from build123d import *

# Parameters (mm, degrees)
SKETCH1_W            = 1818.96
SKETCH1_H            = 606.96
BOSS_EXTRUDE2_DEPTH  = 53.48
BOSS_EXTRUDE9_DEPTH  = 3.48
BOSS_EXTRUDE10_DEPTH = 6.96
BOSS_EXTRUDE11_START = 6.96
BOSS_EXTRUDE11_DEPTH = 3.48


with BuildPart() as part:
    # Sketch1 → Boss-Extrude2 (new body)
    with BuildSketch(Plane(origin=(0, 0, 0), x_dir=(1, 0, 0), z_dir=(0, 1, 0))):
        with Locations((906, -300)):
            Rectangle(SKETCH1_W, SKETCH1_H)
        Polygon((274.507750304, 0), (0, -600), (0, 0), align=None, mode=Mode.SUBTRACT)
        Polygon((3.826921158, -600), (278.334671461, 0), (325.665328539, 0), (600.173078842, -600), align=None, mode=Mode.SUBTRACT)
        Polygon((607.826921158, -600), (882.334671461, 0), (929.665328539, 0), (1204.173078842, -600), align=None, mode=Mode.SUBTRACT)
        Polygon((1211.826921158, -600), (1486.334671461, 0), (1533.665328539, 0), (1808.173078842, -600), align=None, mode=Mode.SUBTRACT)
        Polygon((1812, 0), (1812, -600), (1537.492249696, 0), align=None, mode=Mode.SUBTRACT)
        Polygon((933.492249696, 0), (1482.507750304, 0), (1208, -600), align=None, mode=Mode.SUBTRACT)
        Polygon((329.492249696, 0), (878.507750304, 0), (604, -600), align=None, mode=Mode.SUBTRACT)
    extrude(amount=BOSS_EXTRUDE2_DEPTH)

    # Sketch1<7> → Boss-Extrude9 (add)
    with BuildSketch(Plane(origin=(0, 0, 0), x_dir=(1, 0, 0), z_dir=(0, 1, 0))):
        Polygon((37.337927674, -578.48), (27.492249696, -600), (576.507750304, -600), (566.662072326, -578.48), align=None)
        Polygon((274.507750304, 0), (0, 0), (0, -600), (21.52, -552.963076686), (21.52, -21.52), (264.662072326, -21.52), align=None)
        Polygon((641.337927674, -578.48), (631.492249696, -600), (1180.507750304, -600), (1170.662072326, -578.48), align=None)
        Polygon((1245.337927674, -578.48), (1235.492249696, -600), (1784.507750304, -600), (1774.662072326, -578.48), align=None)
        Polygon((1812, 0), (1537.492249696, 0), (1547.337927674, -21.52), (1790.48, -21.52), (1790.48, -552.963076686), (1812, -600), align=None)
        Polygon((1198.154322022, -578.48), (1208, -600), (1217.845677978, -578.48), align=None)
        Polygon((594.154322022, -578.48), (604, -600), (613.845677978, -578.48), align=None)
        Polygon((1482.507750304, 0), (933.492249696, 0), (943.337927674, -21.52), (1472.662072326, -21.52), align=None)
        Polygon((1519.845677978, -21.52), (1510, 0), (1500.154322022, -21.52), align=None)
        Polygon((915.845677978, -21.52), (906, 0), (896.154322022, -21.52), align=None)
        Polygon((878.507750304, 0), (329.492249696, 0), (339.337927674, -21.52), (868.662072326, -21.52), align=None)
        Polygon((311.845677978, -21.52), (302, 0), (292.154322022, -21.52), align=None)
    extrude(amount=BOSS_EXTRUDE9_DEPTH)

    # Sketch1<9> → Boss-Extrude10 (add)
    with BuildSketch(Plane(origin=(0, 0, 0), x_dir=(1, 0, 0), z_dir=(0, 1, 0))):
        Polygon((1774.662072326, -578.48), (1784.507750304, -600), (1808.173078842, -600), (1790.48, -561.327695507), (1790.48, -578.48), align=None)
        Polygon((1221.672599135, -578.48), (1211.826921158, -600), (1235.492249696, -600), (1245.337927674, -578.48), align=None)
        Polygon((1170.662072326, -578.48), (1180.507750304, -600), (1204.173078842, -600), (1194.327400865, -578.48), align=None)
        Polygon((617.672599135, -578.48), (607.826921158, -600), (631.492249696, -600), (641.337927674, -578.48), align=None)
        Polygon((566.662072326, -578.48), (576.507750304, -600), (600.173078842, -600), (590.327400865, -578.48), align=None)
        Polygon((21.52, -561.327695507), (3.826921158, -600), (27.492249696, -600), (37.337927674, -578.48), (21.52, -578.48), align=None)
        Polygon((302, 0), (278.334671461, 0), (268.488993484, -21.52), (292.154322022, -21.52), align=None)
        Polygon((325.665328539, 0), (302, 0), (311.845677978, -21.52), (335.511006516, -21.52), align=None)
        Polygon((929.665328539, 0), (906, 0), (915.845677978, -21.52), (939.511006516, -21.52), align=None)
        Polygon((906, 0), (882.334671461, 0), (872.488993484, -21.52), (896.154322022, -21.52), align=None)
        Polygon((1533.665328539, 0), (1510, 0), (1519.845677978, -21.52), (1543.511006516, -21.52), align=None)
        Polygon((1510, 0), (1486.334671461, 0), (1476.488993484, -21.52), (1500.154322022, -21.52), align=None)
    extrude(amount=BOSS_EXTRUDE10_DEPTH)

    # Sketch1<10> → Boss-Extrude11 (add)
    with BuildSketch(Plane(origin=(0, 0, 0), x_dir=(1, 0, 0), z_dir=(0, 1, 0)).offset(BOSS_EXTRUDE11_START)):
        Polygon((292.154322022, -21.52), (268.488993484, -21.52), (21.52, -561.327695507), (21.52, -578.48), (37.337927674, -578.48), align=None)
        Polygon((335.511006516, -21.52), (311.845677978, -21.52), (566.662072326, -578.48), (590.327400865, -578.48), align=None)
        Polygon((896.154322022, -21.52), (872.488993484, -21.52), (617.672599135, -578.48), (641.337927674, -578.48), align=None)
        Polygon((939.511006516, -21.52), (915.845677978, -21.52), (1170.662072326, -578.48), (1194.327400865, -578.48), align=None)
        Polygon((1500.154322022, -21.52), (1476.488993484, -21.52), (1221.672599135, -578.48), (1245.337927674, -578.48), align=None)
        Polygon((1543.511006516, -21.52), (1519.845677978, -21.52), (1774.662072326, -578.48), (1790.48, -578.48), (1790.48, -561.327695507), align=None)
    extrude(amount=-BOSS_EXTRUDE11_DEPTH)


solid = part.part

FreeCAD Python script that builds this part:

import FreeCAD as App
import Part
import Sketcher

V = App.Vector

doc = App.newDocument("Part")
params = doc.addObject("Spreadsheet::Sheet", "Params")
for row, (alias, value) in enumerate([
    ("sketch1_height", "600 mm"),
    ("sketch1_width", "1818.96 mm"),
    ("sketch1_height2", "606.96 mm"),
    ("pad1_length", "53.48 mm"),
    ("sketch2_height", "600 mm"),
    ("pad2_length", "3.48 mm"),
    ("pad3_length", "6.96 mm"),
    ("pad4_length", "3.48 mm"),
], start=1):
    params.set(f"A{row}", alias)
    params.set(f"B{row}", "=" + value)
    params.setAlias(f"B{row}", alias)

body = doc.addObject("PartDesign::Body", "Body")
body.AllowCompound = True

# Sketch on XZ plane
sketch1 = body.newObject("Sketcher::SketchObject", "Sketch")
sketch1.AttachmentSupport = (doc.getObject("XZ_Plane"), [""])
sketch1.MapMode = "FlatFace"
sketch1.addGeometry(Part.LineSegment(V(-3, -3, 0), V(-3, 603, 0)), False)
sketch1.addGeometry(Part.LineSegment(V(-3, 603, 0), V(1815, 603, 0)), False)
sketch1.addGeometry(Part.LineSegment(V(1815, 603, 0), V(1815, -3, 0)), False)
sketch1.addGeometry(Part.LineSegment(V(1815, -3, 0), V(-3, -3, 0)), False)
sketch1.addGeometry(Part.LineSegment(V(0, 0, 0), V(275, 0, 0)), False)
sketch1.addGeometry(Part.LineSegment(V(275, 0, 0), V(0, 600, 0)), False)
sketch1.addGeometry(Part.LineSegment(V(0, 600, 0), V(0, 0, 0)), False)
sketch1.addGeometry(Part.LineSegment(V(600, 600, 0), V(4, 600, 0)), False)
sketch1.addGeometry(Part.LineSegment(V(4, 600, 0), V(278, 0, 0)), False)
sketch1.addGeometry(Part.LineSegment(V(278, 0, 0), V(326, 0, 0)), False)
sketch1.addGeometry(Part.LineSegment(V(326, 0, 0), V(600, 600, 0)), False)
sketch1.addGeometry(Part.LineSegment(V(604, 600, 0), V(329, 0, 0)), False)
sketch1.addGeometry(Part.LineSegment(V(329, 0, 0), V(879, 0, 0)), False)
sketch1.addGeometry(Part.LineSegment(V(879, 0, 0), V(604, 600, 0)), False)
sketch1.addGeometry(Part.LineSegment(V(1204, 600, 0), V(608, 600, 0)), False)
sketch1.addGeometry(Part.LineSegment(V(608, 600, 0), V(882, 0, 0)), False)
sketch1.addGeometry(Part.LineSegment(V(882, 0, 0), V(930, 0, 0)), False)
sketch1.addGeometry(Part.LineSegment(V(930, 0, 0), V(1204, 600, 0)), False)
sketch1.addGeometry(Part.LineSegment(V(1208, 600, 0), V(933, 0, 0)), False)
sketch1.addGeometry(Part.LineSegment(V(933, 0, 0), V(1483, 0, 0)), False)
sketch1.addGeometry(Part.LineSegment(V(1483, 0, 0), V(1208, 600, 0)), False)
sketch1.addGeometry(Part.LineSegment(V(1808, 600, 0), V(1212, 600, 0)), False)
sketch1.addGeometry(Part.LineSegment(V(1212, 600, 0), V(1486, 0, 0)), False)
sketch1.addGeometry(Part.LineSegment(V(1486, 0, 0), V(1534, 0, 0)), False)
sketch1.addGeometry(Part.LineSegment(V(1534, 0, 0), V(1808, 600, 0)), False)
sketch1.addGeometry(Part.LineSegment(V(1537, 0, 0), V(1812, 0, 0)), False)
sketch1.addGeometry(Part.LineSegment(V(1812, 0, 0), V(1812, 600, 0)), False)
sketch1.addGeometry(Part.LineSegment(V(1812, 600, 0), V(1537, 0, 0)), False)
sketch1.addConstraint(Sketcher.Constraint("Coincident", 0, 2, 1, 1))
sketch1.addConstraint(Sketcher.Constraint("Coincident", 1, 2, 2, 1))
sketch1.addConstraint(Sketcher.Constraint("Coincident", 2, 2, 3, 1))
sketch1.addConstraint(Sketcher.Constraint("Coincident", 3, 2, 0, 1))
sketch1.addConstraint(Sketcher.Constraint("Coincident", 4, 2, 5, 1))
sketch1.addConstraint(Sketcher.Constraint("Coincident", 5, 2, 6, 1))
sketch1.addConstraint(Sketcher.Constraint("Coincident", 6, 2, 4, 1))
sketch1.addConstraint(Sketcher.Constraint("Coincident", 7, 2, 8, 1))
sketch1.addConstraint(Sketcher.Constraint("Coincident", 8, 2, 9, 1))
sketch1.addConstraint(Sketcher.Constraint("Coincident", 9, 2, 10, 1))
sketch1.addConstraint(Sketcher.Constraint("Coincident", 10, 2, 7, 1))
sketch1.addConstraint(Sketcher.Constraint("Coincident", 11, 2, 12, 1))
sketch1.addConstraint(Sketcher.Constraint("Coincident", 12, 2, 13, 1))
sketch1.addConstraint(Sketcher.Constraint("Coincident", 13, 2, 11, 1))
sketch1.addConstraint(Sketcher.Constraint("Coincident", 14, 2, 15, 1))
sketch1.addConstraint(Sketcher.Constraint("Coincident", 15, 2, 16, 1))
sketch1.addConstraint(Sketcher.Constraint("Coincident", 16, 2, 17, 1))
sketch1.addConstraint(Sketcher.Constraint("Coincident", 17, 2, 14, 1))
sketch1.addConstraint(Sketcher.Constraint("Coincident", 18, 2, 19, 1))
sketch1.addConstraint(Sketcher.Constraint("Coincident", 19, 2, 20, 1))
sketch1.addConstraint(Sketcher.Constraint("Coincident", 20, 2, 18, 1))
sketch1.addConstraint(Sketcher.Constraint("Coincident", 21, 2, 22, 1))
sketch1.addConstraint(Sketcher.Constraint("Coincident", 22, 2, 23, 1))
sketch1.addConstraint(Sketcher.Constraint("Coincident", 23, 2, 24, 1))
sketch1.addConstraint(Sketcher.Constraint("Coincident", 24, 2, 21, 1))
sketch1.addConstraint(Sketcher.Constraint("Coincident", 25, 2, 26, 1))
sketch1.addConstraint(Sketcher.Constraint("Coincident", 26, 2, 27, 1))
sketch1.addConstraint(Sketcher.Constraint("Coincident", 27, 2, 25, 1))
sketch1.addConstraint(Sketcher.Constraint("Vertical", 0))
sketch1.addConstraint(Sketcher.Constraint("Horizontal", 1))
sketch1.addConstraint(Sketcher.Constraint("Vertical", 2))
sketch1.addConstraint(Sketcher.Constraint("Horizontal", 3))
sketch1.addConstraint(Sketcher.Constraint("Horizontal", 4))
sketch1.addConstraint(Sketcher.Constraint("Vertical", 6))
sketch1.addConstraint(Sketcher.Constraint("Horizontal", 7))
sketch1.addConstraint(Sketcher.Constraint("Horizontal", 9))
sketch1.addConstraint(Sketcher.Constraint("Horizontal", 12))
sketch1.addConstraint(Sketcher.Constraint("Horizontal", 14))
sketch1.addConstraint(Sketcher.Constraint("Horizontal", 16))
sketch1.addConstraint(Sketcher.Constraint("Horizontal", 19))
sketch1.addConstraint(Sketcher.Constraint("Horizontal", 21))
sketch1.addConstraint(Sketcher.Constraint("Horizontal", 23))
sketch1.addConstraint(Sketcher.Constraint("Horizontal", 25))
sketch1.addConstraint(Sketcher.Constraint("Vertical", 26))
sketch1.addConstraint(Sketcher.Constraint("Coincident", 6, 2, -1, 1))
sketch1.addConstraint(Sketcher.Constraint("PointOnObject", 8, 2, -1))
sketch1.addConstraint(Sketcher.Constraint("PointOnObject", 11, 2, -1))
sketch1.addConstraint(Sketcher.Constraint("PointOnObject", 15, 2, -1))
sketch1.addConstraint(Sketcher.Constraint("PointOnObject", 18, 2, -1))
sketch1.addConstraint(Sketcher.Constraint("PointOnObject", 22, 2, -1))
sketch1.addConstraint(Sketcher.Constraint("PointOnObject", 25, 2, -1))
sketch1.addConstraint(Sketcher.Constraint("Parallel", 5, 8))
sketch1.addConstraint(Sketcher.Constraint("Parallel", 10, 11))
sketch1.addConstraint(Sketcher.Constraint("Parallel", 8, 13))
sketch1.addConstraint(Sketcher.Constraint("Parallel", 13, 15))
sketch1.addConstraint(Sketcher.Constraint("Parallel", 11, 17))
sketch1.addConstraint(Sketcher.Constraint("Parallel", 17, 18))
sketch1.addConstraint(Sketcher.Constraint("Parallel", 15, 20))
sketch1.addConstraint(Sketcher.Constraint("Parallel", 20, 22))
sketch1.addConstraint(Sketcher.Constraint("Parallel", 18, 24))
sketch1.addConstraint(Sketcher.Constraint("Parallel", 24, 27))
sketch1.addConstraint(Sketcher.Constraint("Horizontal", 5, 2, 7, 2))
sketch1.addConstraint(Sketcher.Constraint("Horizontal", 10, 2, 13, 2))
sketch1.addConstraint(Sketcher.Constraint("Horizontal", 13, 2, 14, 2))
sketch1.addConstraint(Sketcher.Constraint("Horizontal", 17, 2, 20, 2))
sketch1.addConstraint(Sketcher.Constraint("Horizontal", 20, 2, 21, 2))
sketch1.addConstraint(Sketcher.Constraint("Horizontal", 24, 2, 26, 2))
sketch1.addConstraint(Sketcher.Constraint("Equal", 7, 14))
sketch1.addConstraint(Sketcher.Constraint("Equal", 14, 21))
sketch1.addConstraint(Sketcher.Constraint("Equal", 4, 25))
sketch1.addConstraint(Sketcher.Constraint("DistanceY", 6, 2, 6, 1, 600.0))
sketch1.addConstraint(Sketcher.Constraint("DistanceX", -1, 1, 13, 2, 604.0))
sketch1.addConstraint(Sketcher.Constraint("DistanceX", -1, 1, 20, 2, 1208.0))
sketch1.addConstraint(Sketcher.Constraint("DistanceX", -1, 1, 25, 2, 1812.0))
sketch1.addConstraint(Sketcher.Constraint("DistanceX", 7, 2, 14, 2, 604.0))
sketch1.addConstraint(Sketcher.Constraint("DistanceX", 14, 2, 21, 2, 604.0))
sketch1.addConstraint(Sketcher.Constraint("DistanceX", 1, 1, 1, 2, 1818.96))
sketch1.addConstraint(Sketcher.Constraint("DistanceY", 0, 1, 0, 2, 606.96))
sketch1.addConstraint(Sketcher.Constraint("DistanceX", 0, 2, -1, 1, 3.48))
sketch1.addConstraint(Sketcher.Constraint("DistanceY", -1, 1, 0, 2, 603.48))
sketch1.addConstraint(Sketcher.Constraint("DistanceX", 12, 1, 12, 2, 549.015501))
sketch1.addConstraint(Sketcher.Constraint("DistanceX", 7, 2, 7, 1, 596.346158))
sketch1.addConstraint(Sketcher.Constraint("DistanceX", -1, 1, 7, 2, 3.826921))
sketch1.setExpression("Constraints[70]", "Params.sketch1_height")
sketch1.setExpression("Constraints[76]", "Params.sketch1_width")
sketch1.setExpression("Constraints[77]", "Params.sketch1_height2")
pad1 = body.newObject("PartDesign::Pad", "Pad")
pad1.Profile = sketch1
pad1.setExpression("Length", "Params.pad1_length")
pad1.Reversed = True

# Sketch on XZ plane
sketch2 = body.newObject("Sketcher::SketchObject", "Sketch001")
sketch2.AttachmentSupport = (doc.getObject("XZ_Plane"), [""])
sketch2.MapMode = "FlatFace"
sketch2.addGeometry(Part.LineSegment(V(37, 578, 0), V(27, 600, 0)), False)
sketch2.addGeometry(Part.LineSegment(V(27, 600, 0), V(577, 600, 0)), False)
sketch2.addGeometry(Part.LineSegment(V(577, 600, 0), V(567, 578, 0)), False)
sketch2.addGeometry(Part.LineSegment(V(567, 578, 0), V(37, 578, 0)), False)
sketch2.addGeometry(Part.LineSegment(V(275, 0, 0), V(0, 0, 0)), False)
sketch2.addGeometry(Part.LineSegment(V(0, 0, 0), V(0, 600, 0)), False)
sketch2.addGeometry(Part.LineSegment(V(0, 600, 0), V(22, 553, 0)), False)
sketch2.addGeometry(Part.LineSegment(V(22, 553, 0), V(22, 22, 0)), False)
sketch2.addGeometry(Part.LineSegment(V(22, 22, 0), V(265, 22, 0)), False)
sketch2.addGeometry(Part.LineSegment(V(265, 22, 0), V(275, 0, 0)), False)
sketch2.addGeometry(Part.LineSegment(V(641, 578, 0), V(631, 600, 0)), False)
sketch2.addGeometry(Part.LineSegment(V(631, 600, 0), V(1181, 600, 0)), False)
sketch2.addGeometry(Part.LineSegment(V(1181, 600, 0), V(1171, 578, 0)), False)
sketch2.addGeometry(Part.LineSegment(V(1171, 578, 0), V(641, 578, 0)), False)
sketch2.addGeometry(Part.LineSegment(V(1245, 578, 0), V(1235, 600, 0)), False)
sketch2.addGeometry(Part.LineSegment(V(1235, 600, 0), V(1785, 600, 0)), False)
sketch2.addGeometry(Part.LineSegment(V(1785, 600, 0), V(1775, 578, 0)), False)
sketch2.addGeometry(Part.LineSegment(V(1775, 578, 0), V(1245, 578, 0)), False)
sketch2.addGeometry(Part.LineSegment(V(1812, 0, 0), V(1537, 0, 0)), False)
sketch2.addGeometry(Part.LineSegment(V(1537, 0, 0), V(1547, 22, 0)), False)
sketch2.addGeometry(Part.LineSegment(V(1547, 22, 0), V(1790, 22, 0)), False)
sketch2.addGeometry(Part.LineSegment(V(1790, 22, 0), V(1790, 553, 0)), False)
sketch2.addGeometry(Part.LineSegment(V(1790, 553, 0), V(1812, 600, 0)), False)
sketch2.addGeometry(Part.LineSegment(V(1812, 600, 0), V(1812, 0, 0)), False)
sketch2.addGeometry(Part.LineSegment(V(1198, 578, 0), V(1208, 600, 0)), False)
sketch2.addGeometry(Part.LineSegment(V(1208, 600, 0), V(1218, 578, 0)), False)
sketch2.addGeometry(Part.LineSegment(V(1218, 578, 0), V(1198, 578, 0)), False)
sketch2.addGeometry(Part.LineSegment(V(594, 578, 0), V(604, 600, 0)), False)
sketch2.addGeometry(Part.LineSegment(V(604, 600, 0), V(614, 578, 0)), False)
sketch2.addGeometry(Part.LineSegment(V(614, 578, 0), V(594, 578, 0)), False)
sketch2.addGeometry(Part.LineSegment(V(1483, 0, 0), V(933, 0, 0)), False)
sketch2.addGeometry(Part.LineSegment(V(933, 0, 0), V(943, 22, 0)), False)
sketch2.addGeometry(Part.LineSegment(V(943, 22, 0), V(1473, 22, 0)), False)
sketch2.addGeometry(Part.LineSegment(V(1473, 22, 0), V(1483, 0, 0)), False)
sketch2.addGeometry(Part.LineSegment(V(1520, 22, 0), V(1510, 0, 0)), False)
sketch2.addGeometry(Part.LineSegment(V(1510, 0, 0), V(1500, 22, 0)), False)
sketch2.addGeometry(Part.LineSegment(V(1500, 22, 0), V(1520, 22, 0)), False)
sketch2.addGeometry(Part.LineSegment(V(916, 22, 0), V(906, 0, 0)), False)
sketch2.addGeometry(Part.LineSegment(V(906, 0, 0), V(896, 22, 0)), False)
sketch2.addGeometry(Part.LineSegment(V(896, 22, 0), V(916, 22, 0)), False)
sketch2.addGeometry(Part.LineSegment(V(879, 0, 0), V(329, 0, 0)), False)
sketch2.addGeometry(Part.LineSegment(V(329, 0, 0), V(339, 22, 0)), False)
sketch2.addGeometry(Part.LineSegment(V(339, 22, 0), V(869, 22, 0)), False)
sketch2.addGeometry(Part.LineSegment(V(869, 22, 0), V(879, 0, 0)), False)
sketch2.addGeometry(Part.LineSegment(V(312, 22, 0), V(302, 0, 0)), False)
sketch2.addGeometry(Part.LineSegment(V(302, 0, 0), V(292, 22, 0)), False)
sketch2.addGeometry(Part.LineSegment(V(292, 22, 0), V(312, 22, 0)), False)
sketch2.addConstraint(Sketcher.Constraint("Coincident", 0, 2, 1, 1))
sketch2.addConstraint(Sketcher.Constraint("Coincident", 1, 2, 2, 1))
sketch2.addConstraint(Sketcher.Constraint("Coincident", 2, 2, 3, 1))
sketch2.addConstraint(Sketcher.Constraint("Coincident", 3, 2, 0, 1))
sketch2.addConstraint(Sketcher.Constraint("Coincident", 4, 2, 5, 1))
sketch2.addConstraint(Sketcher.Constraint("Coincident", 5, 2, 6, 1))
sketch2.addConstraint(Sketcher.Constraint("Coincident", 6, 2, 7, 1))
sketch2.addConstraint(Sketcher.Constraint("Coincident", 7, 2, 8, 1))
sketch2.addConstraint(Sketcher.Constraint("Coincident", 8, 2, 9, 1))
sketch2.addConstraint(Sketcher.Constraint("Coincident", 9, 2, 4, 1))
sketch2.addConstraint(Sketcher.Constraint("Coincident", 10, 2, 11, 1))
sketch2.addConstraint(Sketcher.Constraint("Coincident", 11, 2, 12, 1))
sketch2.addConstraint(Sketcher.Constraint("Coincident", 12, 2, 13, 1))
sketch2.addConstraint(Sketcher.Constraint("Coincident", 13, 2, 10, 1))
sketch2.addConstraint(Sketcher.Constraint("Coincident", 14, 2, 15, 1))
sketch2.addConstraint(Sketcher.Constraint("Coincident", 15, 2, 16, 1))
sketch2.addConstraint(Sketcher.Constraint("Coincident", 16, 2, 17, 1))
sketch2.addConstraint(Sketcher.Constraint("Coincident", 17, 2, 14, 1))
sketch2.addConstraint(Sketcher.Constraint("Coincident", 18, 2, 19, 1))
sketch2.addConstraint(Sketcher.Constraint("Coincident", 19, 2, 20, 1))
sketch2.addConstraint(Sketcher.Constraint("Coincident", 20, 2, 21, 1))
sketch2.addConstraint(Sketcher.Constraint("Coincident", 21, 2, 22, 1))
sketch2.addConstraint(Sketcher.Constraint("Coincident", 22, 2, 23, 1))
sketch2.addConstraint(Sketcher.Constraint("Coincident", 23, 2, 18, 1))
sketch2.addConstraint(Sketcher.Constraint("Coincident", 24, 2, 25, 1))
sketch2.addConstraint(Sketcher.Constraint("Coincident", 25, 2, 26, 1))
sketch2.addConstraint(Sketcher.Constraint("Coincident", 26, 2, 24, 1))
sketch2.addConstraint(Sketcher.Constraint("Coincident", 27, 2, 28, 1))
sketch2.addConstraint(Sketcher.Constraint("Coincident", 28, 2, 29, 1))
sketch2.addConstraint(Sketcher.Constraint("Coincident", 29, 2, 27, 1))
sketch2.addConstraint(Sketcher.Constraint("Coincident", 30, 2, 31, 1))
sketch2.addConstraint(Sketcher.Constraint("Coincident", 31, 2, 32, 1))
sketch2.addConstraint(Sketcher.Constraint("Coincident", 32, 2, 33, 1))
sketch2.addConstraint(Sketcher.Constraint("Coincident", 33, 2, 30, 1))
sketch2.addConstraint(Sketcher.Constraint("Coincident", 34, 2, 35, 1))
sketch2.addConstraint(Sketcher.Constraint("Coincident", 35, 2, 36, 1))
sketch2.addConstraint(Sketcher.Constraint("Coincident", 36, 2, 34, 1))
sketch2.addConstraint(Sketcher.Constraint("Coincident", 37, 2, 38, 1))
sketch2.addConstraint(Sketcher.Constraint("Coincident", 38, 2, 39, 1))
sketch2.addConstraint(Sketcher.Constraint("Coincident", 39, 2, 37, 1))
sketch2.addConstraint(Sketcher.Constraint("Coincident", 40, 2, 41, 1))
sketch2.addConstraint(Sketcher.Constraint("Coincident", 41, 2, 42, 1))
sketch2.addConstraint(Sketcher.Constraint("Coincident", 42, 2, 43, 1))
sketch2.addConstraint(Sketcher.Constraint("Coincident", 43, 2, 40, 1))
sketch2.addConstraint(Sketcher.Constraint("Coincident", 44, 2, 45, 1))
sketch2.addConstraint(Sketcher.Constraint("Coincident", 45, 2, 46, 1))
sketch2.addConstraint(Sketcher.Constraint("Coincident", 46, 2, 44, 1))
sketch2.addConstraint(Sketcher.Constraint("Horizontal", 1))
sketch2.addConstraint(Sketcher.Constraint("Horizontal", 3))
sketch2.addConstraint(Sketcher.Constraint("Horizontal", 4))
sketch2.addConstraint(Sketcher.Constraint("Vertical", 5))
sketch2.addConstraint(Sketcher.Constraint("Vertical", 7))
sketch2.addConstraint(Sketcher.Constraint("Horizontal", 8))
sketch2.addConstraint(Sketcher.Constraint("Horizontal", 11))
sketch2.addConstraint(Sketcher.Constraint("Horizontal", 13))
sketch2.addConstraint(Sketcher.Constraint("Horizontal", 15))
sketch2.addConstraint(Sketcher.Constraint("Horizontal", 17))
sketch2.addConstraint(Sketcher.Constraint("Horizontal", 18))
sketch2.addConstraint(Sketcher.Constraint("Horizontal", 20))
sketch2.addConstraint(Sketcher.Constraint("Vertical", 21))
sketch2.addConstraint(Sketcher.Constraint("Vertical", 23))
sketch2.addConstraint(Sketcher.Constraint("Horizontal", 26))
sketch2.addConstraint(Sketcher.Constraint("Horizontal", 29))
sketch2.addConstraint(Sketcher.Constraint("Horizontal", 30))
sketch2.addConstraint(Sketcher.Constraint("Horizontal", 32))
sketch2.addConstraint(Sketcher.Constraint("Horizontal", 36))
sketch2.addConstraint(Sketcher.Constraint("Horizontal", 39))
sketch2.addConstraint(Sketcher.Constraint("Horizontal", 40))
sketch2.addConstraint(Sketcher.Constraint("Horizontal", 42))
sketch2.addConstraint(Sketcher.Constraint("Horizontal", 46))
sketch2.addConstraint(Sketcher.Constraint("Coincident", 4, 2, -1, 1))
sketch2.addConstraint(Sketcher.Constraint("PointOnObject", 18, 2, -1))
sketch2.addConstraint(Sketcher.Constraint("PointOnObject", 30, 2, -1))
sketch2.addConstraint(Sketcher.Constraint("PointOnObject", 34, 2, -1))
sketch2.addConstraint(Sketcher.Constraint("PointOnObject", 37, 2, -1))
sketch2.addConstraint(Sketcher.Constraint("PointOnObject", 40, 2, -1))
sketch2.addConstraint(Sketcher.Constraint("PointOnObject", 44, 2, -1))
sketch2.addConstraint(Sketcher.Constraint("Parallel", 0, 6))
sketch2.addConstraint(Sketcher.Constraint("Parallel", 6, 9))
sketch2.addConstraint(Sketcher.Constraint("Parallel", 9, 10))
sketch2.addConstraint(Sketcher.Constraint("Parallel", 2, 12))
sketch2.addConstraint(Sketcher.Constraint("Parallel", 10, 14))
sketch2.addConstraint(Sketcher.Constraint("Parallel", 12, 16))
sketch2.addConstraint(Sketcher.Constraint("Parallel", 16, 19))
sketch2.addConstraint(Sketcher.Constraint("Parallel", 19, 22))
sketch2.addConstraint(Sketcher.Constraint("Parallel", 22, 24))
sketch2.addConstraint(Sketcher.Constraint("Parallel", 14, 25))
sketch2.addConstraint(Sketcher.Constraint("Parallel", 24, 27))
sketch2.addConstraint(Sketcher.Constraint("Parallel", 25, 28))
sketch2.addConstraint(Sketcher.Constraint("Parallel", 27, 31))
sketch2.addConstraint(Sketcher.Constraint("Parallel", 28, 33))
sketch2.addConstraint(Sketcher.Constraint("Parallel", 31, 34))
sketch2.addConstraint(Sketcher.Constraint("Parallel", 33, 35))
sketch2.addConstraint(Sketcher.Constraint("Parallel", 34, 37))
sketch2.addConstraint(Sketcher.Constraint("Parallel", 35, 38))
sketch2.addConstraint(Sketcher.Constraint("Parallel", 37, 41))
sketch2.addConstraint(Sketcher.Constraint("Parallel", 38, 43))
sketch2.addConstraint(Sketcher.Constraint("Parallel", 41, 44))
sketch2.addConstraint(Sketcher.Constraint("Parallel", 43, 45))
sketch2.addConstraint(Sketcher.Constraint("Horizontal", 1, 2, 5, 2))
sketch2.addConstraint(Sketcher.Constraint("Horizontal", 5, 2, 10, 2))
sketch2.addConstraint(Sketcher.Constraint("Horizontal", 3, 2, 12, 2))
sketch2.addConstraint(Sketcher.Constraint("Horizontal", 11, 2, 14, 2))
sketch2.addConstraint(Sketcher.Constraint("Horizontal", 13, 2, 16, 2))
sketch2.addConstraint(Sketcher.Constraint("Horizontal", 8, 2, 19, 2))
sketch2.addConstraint(Sketcher.Constraint("Horizontal", 6, 2, 21, 2))
sketch2.addConstraint(Sketcher.Constraint("Horizontal", 15, 2, 22, 2))
sketch2.addConstraint(Sketcher.Constraint("Horizontal", 22, 2, 24, 2))
sketch2.addConstraint(Sketcher.Constraint("Horizontal", 17, 2, 25, 2))
sketch2.addConstraint(Sketcher.Constraint("Horizontal", 24, 2, 27, 2))
sketch2.addConstraint(Sketcher.Constraint("Horizontal", 26, 2, 28, 2))
sketch2.addConstraint(Sketcher.Constraint("Horizontal", 20, 2, 31, 2))
sketch2.addConstraint(Sketcher.Constraint("Horizontal", 32, 2, 35, 2))
sketch2.addConstraint(Sketcher.Constraint("Horizontal", 36, 2, 38, 2))
sketch2.addConstraint(Sketcher.Constraint("Horizontal", 39, 2, 41, 2))
sketch2.addConstraint(Sketcher.Constraint("Horizontal", 42, 2, 45, 2))
sketch2.addConstraint(Sketcher.Constraint("Equal", 1, 11))
sketch2.addConstraint(Sketcher.Constraint("Equal", 11, 15))
sketch2.addConstraint(Sketcher.Constraint("Equal", 4, 18))
sketch2.addConstraint(Sketcher.Constraint("Equal", 8, 20))
sketch2.addConstraint(Sketcher.Constraint("Equal", 15, 30))
sketch2.addConstraint(Sketcher.Constraint("Equal", 17, 32))
sketch2.addConstraint(Sketcher.Constraint("Equal", 30, 40))
sketch2.addConstraint(Sketcher.Constraint("DistanceY", 5, 1, 5, 2, 600.0))
sketch2.addConstraint(Sketcher.Constraint("DistanceX", -1, 1, 22, 2, 1812.0))
sketch2.addConstraint(Sketcher.Constraint("DistanceX", -1, 1, 24, 2, 1208.0))
sketch2.addConstraint(Sketcher.Constraint("DistanceX", -1, 1, 27, 2, 604.0))
sketch2.addConstraint(Sketcher.Constraint("DistanceX", -1, 1, 34, 2, 1510.0))
sketch2.addConstraint(Sketcher.Constraint("DistanceX", -1, 1, 37, 2, 906.0))
sketch2.addConstraint(Sketcher.Constraint("DistanceX", -1, 1, 44, 2, 302.0))
sketch2.addConstraint(Sketcher.Constraint("DistanceX", 0, 2, 10, 2, 604.0))
sketch2.addConstraint(Sketcher.Constraint("DistanceX", 9, 2, 11, 2, 906.0))
sketch2.addConstraint(Sketcher.Constraint("DistanceX", 10, 2, 14, 2, 604.0))
sketch2.addConstraint(Sketcher.Constraint("DistanceX", 14, 2, 18, 2, 302.0))
sketch2.addConstraint(Sketcher.Constraint("DistanceX", 30, 2, 18, 2, 604.0))
sketch2.addConstraint(Sketcher.Constraint("DistanceY", -1, 1, 2, 2, 578.48))
sketch2.addConstraint(Sketcher.Constraint("DistanceX", -1, 1, 6, 2, 21.52))
sketch2.addConstraint(Sketcher.Constraint("DistanceX", 1, 1, 1, 2, 549.015501))
sketch2.addConstraint(Sketcher.Constraint("DistanceX", 9, 2, 40, 2, 54.984499))
sketch2.addConstraint(Sketcher.Constraint("Distance", 0, 23.665329))
sketch2.setExpression("Constraints[123]", "Params.sketch2_height")
pad2 = body.newObject("PartDesign::Pad", "Pad001")
pad2.Profile = sketch2
pad2.setExpression("Length", "Params.pad2_length")
pad2.Reversed = True

# Sketch on XZ plane
sketch3 = body.newObject("Sketcher::SketchObject", "Sketch002")
sketch3.AttachmentSupport = (doc.getObject("XZ_Plane"), [""])
sketch3.MapMode = "FlatFace"
sketch3.addGeometry(Part.LineSegment(V(1775, 578, 0), V(1785, 600, 0)), False)
sketch3.addGeometry(Part.LineSegment(V(1785, 600, 0), V(1808, 600, 0)), False)
sketch3.addGeometry(Part.LineSegment(V(1808, 600, 0), V(1790, 561, 0)), False)
sketch3.addGeometry(Part.LineSegment(V(1790, 561, 0), V(1790, 578, 0)), False)
sketch3.addGeometry(Part.LineSegment(V(1790, 578, 0), V(1775, 578, 0)), False)
sketch3.addGeometry(Part.LineSegment(V(1222, 578, 0), V(1212, 600, 0)), False)
sketch3.addGeometry(Part.LineSegment(V(1212, 600, 0), V(1235, 600, 0)), False)
sketch3.addGeometry(Part.LineSegment(V(1235, 600, 0), V(1245, 578, 0)), False)
sketch3.addGeometry(Part.LineSegment(V(1245, 578, 0), V(1222, 578, 0)), False)
sketch3.addGeometry(Part.LineSegment(V(1171, 578, 0), V(1181, 600, 0)), False)
sketch3.addGeometry(Part.LineSegment(V(1181, 600, 0), V(1204, 600, 0)), False)
sketch3.addGeometry(Part.LineSegment(V(1204, 600, 0), V(1194, 578, 0)), False)
sketch3.addGeometry(Part.LineSegment(V(1194, 578, 0), V(1171, 578, 0)), False)
sketch3.addGeometry(Part.LineSegment(V(618, 578, 0), V(608, 600, 0)), False)
sketch3.addGeometry(Part.LineSegment(V(608, 600, 0), V(631, 600, 0)), False)
sketch3.addGeometry(Part.LineSegment(V(631, 600, 0), V(641, 578, 0)), False)
sketch3.addGeometry(Part.LineSegment(V(641, 578, 0), V(618, 578, 0)), False)
sketch3.addGeometry(Part.LineSegment(V(567, 578, 0), V(577, 600, 0)), False)
sketch3.addGeometry(Part.LineSegment(V(577, 600, 0), V(600, 600, 0)), False)
sketch3.addGeometry(Part.LineSegment(V(600, 600, 0), V(590, 578, 0)), False)
sketch3.addGeometry(Part.LineSegment(V(590, 578, 0), V(567, 578, 0)), False)
sketch3.addGeometry(Part.LineSegment(V(22, 561, 0), V(4, 600, 0)), False)
sketch3.addGeometry(Part.LineSegment(V(4, 600, 0), V(27, 600, 0)), False)
sketch3.addGeometry(Part.LineSegment(V(27, 600, 0), V(37, 578, 0)), False)
sketch3.addGeometry(Part.LineSegment(V(37, 578, 0), V(22, 578, 0)), False)
sketch3.addGeometry(Part.LineSegment(V(22, 578, 0), V(22, 561, 0)), False)
sketch3.addGeometry(Part.LineSegment(V(302, 0, 0), V(278, 0, 0)), False)
sketch3.addGeometry(Part.LineSegment(V(278, 0, 0), V(268, 22, 0)), False)
sketch3.addGeometry(Part.LineSegment(V(268, 22, 0), V(292, 22, 0)), False)
sketch3.addGeometry(Part.LineSegment(V(292, 22, 0), V(302, 0, 0)), False)
sketch3.addGeometry(Part.LineSegment(V(326, 0, 0), V(302, 0, 0)), False)
sketch3.addGeometry(Part.LineSegment(V(302, 0, 0), V(312, 22, 0)), False)
sketch3.addGeometry(Part.LineSegment(V(312, 22, 0), V(336, 22, 0)), False)
sketch3.addGeometry(Part.LineSegment(V(336, 22, 0), V(326, 0, 0)), False)
sketch3.addGeometry(Part.LineSegment(V(930, 0, 0), V(906, 0, 0)), False)
sketch3.addGeometry(Part.LineSegment(V(906, 0, 0), V(916, 22, 0)), False)
sketch3.addGeometry(Part.LineSegment(V(916, 22, 0), V(940, 22, 0)), False)
sketch3.addGeometry(Part.LineSegment(V(940, 22, 0), V(930, 0, 0)), False)
sketch3.addGeometry(Part.LineSegment(V(906, 0, 0), V(882, 0, 0)), False)
sketch3.addGeometry(Part.LineSegment(V(882, 0, 0), V(872, 22, 0)), False)
sketch3.addGeometry(Part.LineSegment(V(872, 22, 0), V(896, 22, 0)), False)
sketch3.addGeometry(Part.LineSegment(V(896, 22, 0), V(906, 0, 0)), False)
sketch3.addGeometry(Part.LineSegment(V(1534, 0, 0), V(1510, 0, 0)), False)
sketch3.addGeometry(Part.LineSegment(V(1510, 0, 0), V(1520, 22, 0)), False)
sketch3.addGeometry(Part.LineSegment(V(1520, 22, 0), V(1544, 22, 0)), False)
sketch3.addGeometry(Part.LineSegment(V(1544, 22, 0), V(1534, 0, 0)), False)
sketch3.addGeometry(Part.LineSegment(V(1510, 0, 0), V(1486, 0, 0)), False)
sketch3.addGeometry(Part.LineSegment(V(1486, 0, 0), V(1476, 22, 0)), False)
sketch3.addGeometry(Part.LineSegment(V(1476, 22, 0), V(1500, 22, 0)), False)
sketch3.addGeometry(Part.LineSegment(V(1500, 22, 0), V(1510, 0, 0)), False)
sketch3.addConstraint(Sketcher.Constraint("Coincident", 0, 2, 1, 1))
sketch3.addConstraint(Sketcher.Constraint("Coincident", 1, 2, 2, 1))
sketch3.addConstraint(Sketcher.Constraint("Coincident", 2, 2, 3, 1))
sketch3.addConstraint(Sketcher.Constraint("Coincident", 3, 2, 4, 1))
sketch3.addConstraint(Sketcher.Constraint("Coincident", 4, 2, 0, 1))
sketch3.addConstraint(Sketcher.Constraint("Coincident", 5, 2, 6, 1))
sketch3.addConstraint(Sketcher.Constraint("Coincident", 6, 2, 7, 1))
sketch3.addConstraint(Sketcher.Constraint("Coincident", 7, 2, 8, 1))
sketch3.addConstraint(Sketcher.Constraint("Coincident", 8, 2, 5, 1))
sketch3.addConstraint(Sketcher.Constraint("Coincident", 9, 2, 10, 1))
sketch3.addConstraint(Sketcher.Constraint("Coincident", 10, 2, 11, 1))
sketch3.addConstraint(Sketcher.Constraint("Coincident", 11, 2, 12, 1))
sketch3.addConstraint(Sketcher.Constraint("Coincident", 12, 2, 9, 1))
sketch3.addConstraint(Sketcher.Constraint("Coincident", 13, 2, 14, 1))
sketch3.addConstraint(Sketcher.Constraint("Coincident", 14, 2, 15, 1))
sketch3.addConstraint(Sketcher.Constraint("Coincident", 15, 2, 16, 1))
sketch3.addConstraint(Sketcher.Constraint("Coincident", 16, 2, 13, 1))
sketch3.addConstraint(Sketcher.Constraint("Coincident", 17, 2, 18, 1))
sketch3.addConstraint(Sketcher.Constraint("Coincident", 18, 2, 19, 1))
sketch3.addConstraint(Sketcher.Constraint("Coincident", 19, 2, 20, 1))
sketch3.addConstraint(Sketcher.Constraint("Coincident", 20, 2, 17, 1))
sketch3.addConstraint(Sketcher.Constraint("Coincident", 21, 2, 22, 1))
sketch3.addConstraint(Sketcher.Constraint("Coincident", 22, 2, 23, 1))
sketch3.addConstraint(Sketcher.Constraint("Coincident", 23, 2, 24, 1))
sketch3.addConstraint(Sketcher.Constraint("Coincident", 24, 2, 25, 1))
sketch3.addConstraint(Sketcher.Constraint("Coincident", 25, 2, 21, 1))
sketch3.addConstraint(Sketcher.Constraint("Coincident", 26, 2, 27, 1))
sketch3.addConstraint(Sketcher.Constraint("Coincident", 27, 2, 28, 1))
sketch3.addConstraint(Sketcher.Constraint("Coincident", 28, 2, 29, 1))
sketch3.addConstraint(Sketcher.Constraint("Coincident", 29, 2, 26, 1))
sketch3.addConstraint(Sketcher.Constraint("Coincident", 30, 2, 31, 1))
sketch3.addConstraint(Sketcher.Constraint("Coincident", 31, 2, 32, 1))
sketch3.addConstraint(Sketcher.Constraint("Coincident", 32, 2, 33, 1))
sketch3.addConstraint(Sketcher.Constraint("Coincident", 33, 2, 30, 1))
sketch3.addConstraint(Sketcher.Constraint("Coincident", 34, 2, 35, 1))
sketch3.addConstraint(Sketcher.Constraint("Coincident", 35, 2, 36, 1))
sketch3.addConstraint(Sketcher.Constraint("Coincident", 36, 2, 37, 1))
sketch3.addConstraint(Sketcher.Constraint("Coincident", 37, 2, 34, 1))
sketch3.addConstraint(Sketcher.Constraint("Coincident", 38, 2, 39, 1))
sketch3.addConstraint(Sketcher.Constraint("Coincident", 39, 2, 40, 1))
sketch3.addConstraint(Sketcher.Constraint("Coincident", 40, 2, 41, 1))
sketch3.addConstraint(Sketcher.Constraint("Coincident", 41, 2, 38, 1))
sketch3.addConstraint(Sketcher.Constraint("Coincident", 42, 2, 43, 1))
sketch3.addConstraint(Sketcher.Constraint("Coincident", 43, 2, 44, 1))
sketch3.addConstraint(Sketcher.Constraint("Coincident", 44, 2, 45, 1))
sketch3.addConstraint(Sketcher.Constraint("Coincident", 45, 2, 42, 1))
sketch3.addConstraint(Sketcher.Constraint("Coincident", 46, 2, 47, 1))
sketch3.addConstraint(Sketcher.Constraint("Coincident", 47, 2, 48, 1))
sketch3.addConstraint(Sketcher.Constraint("Coincident", 48, 2, 49, 1))
sketch3.addConstraint(Sketcher.Constraint("Coincident", 49, 2, 46, 1))
sketch3.addConstraint(Sketcher.Constraint("Horizontal", 1))
sketch3.addConstraint(Sketcher.Constraint("Vertical", 3))
sketch3.addConstraint(Sketcher.Constraint("Horizontal", 4))
sketch3.addConstraint(Sketcher.Constraint("Horizontal", 6))
sketch3.addConstraint(Sketcher.Constraint("Horizontal", 8))
sketch3.addConstraint(Sketcher.Constraint("Horizontal", 10))
sketch3.addConstraint(Sketcher.Constraint("Horizontal", 12))
sketch3.addConstraint(Sketcher.Constraint("Horizontal", 14))
sketch3.addConstraint(Sketcher.Constraint("Horizontal", 16))
sketch3.addConstraint(Sketcher.Constraint("Horizontal", 18))
sketch3.addConstraint(Sketcher.Constraint("Horizontal", 20))
sketch3.addConstraint(Sketcher.Constraint("Horizontal", 22))
sketch3.addConstraint(Sketcher.Constraint("Horizontal", 24))
sketch3.addConstraint(Sketcher.Constraint("Vertical", 25))
sketch3.addConstraint(Sketcher.Constraint("Horizontal", 26))
sketch3.addConstraint(Sketcher.Constraint("Horizontal", 28))
sketch3.addConstraint(Sketcher.Constraint("Horizontal", 30))
sketch3.addConstraint(Sketcher.Constraint("Horizontal", 32))
sketch3.addConstraint(Sketcher.Constraint("Horizontal", 34))
sketch3.addConstraint(Sketcher.Constraint("Horizontal", 36))
sketch3.addConstraint(Sketcher.Constraint("Horizontal", 38))
sketch3.addConstraint(Sketcher.Constraint("Horizontal", 40))
sketch3.addConstraint(Sketcher.Constraint("Horizontal", 42))
sketch3.addConstraint(Sketcher.Constraint("Horizontal", 44))
sketch3.addConstraint(Sketcher.Constraint("Horizontal", 46))
sketch3.addConstraint(Sketcher.Constraint("Horizontal", 48))
sketch3.addConstraint(Sketcher.Constraint("Coincident", 30, 2, 29, 2))
sketch3.addConstraint(Sketcher.Constraint("Coincident", 41, 2, 34, 2))
sketch3.addConstraint(Sketcher.Constraint("Coincident", 49, 2, 42, 2))
sketch3.addConstraint(Sketcher.Constraint("PointOnObject", 26, 2, -1))
sketch3.addConstraint(Sketcher.Constraint("PointOnObject", 34, 2, -1))
sketch3.addConstraint(Sketcher.Constraint("PointOnObject", 42, 2, -1))
sketch3.addConstraint(Sketcher.Constraint("Parallel", 0, 2))
sketch3.addConstraint(Sketcher.Constraint("Parallel", 5, 7))
sketch3.addConstraint(Sketcher.Constraint("Parallel", 2, 9))
sketch3.addConstraint(Sketcher.Constraint("Parallel", 9, 11))
sketch3.addConstraint(Sketcher.Constraint("Parallel", 7, 13))
sketch3.addConstraint(Sketcher.Constraint("Parallel", 13, 15))
sketch3.addConstraint(Sketcher.Constraint("Parallel", 11, 17))
sketch3.addConstraint(Sketcher.Constraint("Parallel", 17, 19))
sketch3.addConstraint(Sketcher.Constraint("Parallel", 15, 21))
sketch3.addConstraint(Sketcher.Constraint("Parallel", 21, 23))
sketch3.addConstraint(Sketcher.Constraint("Parallel", 23, 27))
sketch3.addConstraint(Sketcher.Constraint("Parallel", 27, 29))
sketch3.addConstraint(Sketcher.Constraint("Parallel", 19, 31))
sketch3.addConstraint(Sketcher.Constraint("Parallel", 31, 33))
sketch3.addConstraint(Sketcher.Constraint("Parallel", 33, 35))
sketch3.addConstraint(Sketcher.Constraint("Parallel", 35, 37))
sketch3.addConstraint(Sketcher.Constraint("Parallel", 29, 39))
sketch3.addConstraint(Sketcher.Constraint("Parallel", 39, 41))
sketch3.addConstraint(Sketcher.Constraint("Parallel", 37, 43))
sketch3.addConstraint(Sketcher.Constraint("Parallel", 43, 45))
sketch3.addConstraint(Sketcher.Constraint("Parallel", 41, 47))
sketch3.addConstraint(Sketcher.Constraint("Parallel", 47, 49))
sketch3.addConstraint(Sketcher.Constraint("Horizontal", 1, 2, 5, 2))
sketch3.addConstraint(Sketcher.Constraint("Horizontal", 4, 2, 7, 2))
sketch3.addConstraint(Sketcher.Constraint("Horizontal", 6, 2, 9, 2))
sketch3.addConstraint(Sketcher.Constraint("Horizontal", 8, 2, 11, 2))
sketch3.addConstraint(Sketcher.Constraint("Horizontal", 10, 2, 13, 2))
sketch3.addConstraint(Sketcher.Constraint("Horizontal", 12, 2, 15, 2))
sketch3.addConstraint(Sketcher.Constraint("Horizontal", 14, 2, 17, 2))
sketch3.addConstraint(Sketcher.Constraint("Horizontal", 16, 2, 19, 2))
sketch3.addConstraint(Sketcher.Constraint("Horizontal", 18, 2, 21, 2))
sketch3.addConstraint(Sketcher.Constraint("Horizontal", 20, 2, 23, 2))
sketch3.addConstraint(Sketcher.Constraint("Horizontal", 2, 2, 25, 2))
sketch3.addConstraint(Sketcher.Constraint("Horizontal", 28, 2, 31, 2))
sketch3.addConstraint(Sketcher.Constraint("Horizontal", 32, 2, 35, 2))
sketch3.addConstraint(Sketcher.Constraint("Horizontal", 36, 2, 39, 2))
sketch3.addConstraint(Sketcher.Constraint("Horizontal", 40, 2, 43, 2))
sketch3.addConstraint(Sketcher.Constraint("Horizontal", 44, 2, 47, 2))
sketch3.addConstraint(Sketcher.Constraint("Equal", 1, 6))
sketch3.addConstraint(Sketcher.Constraint("Equal", 8, 10))
sketch3.addConstraint(Sketcher.Constraint("Equal", 12, 14))
sketch3.addConstraint(Sketcher.Constraint("Equal", 16, 18))
sketch3.addConstraint(Sketcher.Constraint("Equal", 20, 22))
sketch3.addConstraint(Sketcher.Constraint("Equal", 4, 24))
sketch3.addConstraint(Sketcher.Constraint("Equal", 22, 26))
sketch3.addConstraint(Sketcher.Constraint("Equal", 28, 30))
sketch3.addConstraint(Sketcher.Constraint("Equal", 32, 34))
sketch3.addConstraint(Sketcher.Constraint("Equal", 36, 38))
sketch3.addConstraint(Sketcher.Constraint("Equal", 40, 42))
sketch3.addConstraint(Sketcher.Constraint("Equal", 44, 46))
sketch3.addConstraint(Sketcher.Constraint("Equal", 23, 27))
sketch3.addConstraint(Sketcher.Constraint("DistanceY", -1, 1, 0, 2, 600.0))
sketch3.addConstraint(Sketcher.Constraint("DistanceX", -1, 1, 29, 2, 302.0))
sketch3.addConstraint(Sketcher.Constraint("DistanceX", -1, 1, 34, 2, 906.0))
sketch3.addConstraint(Sketcher.Constraint("DistanceX", -1, 1, 42, 2, 1510.0))
sketch3.addConstraint(Sketcher.Constraint("DistanceX", 13, 2, 5, 2, 604.0))
sketch3.addConstraint(Sketcher.Constraint("DistanceX", 21, 2, 13, 2, 604.0))
sketch3.addConstraint(Sketcher.Constraint("DistanceX", -1, 1, 2, 2, 1790.48))
sketch3.addConstraint(Sketcher.Constraint("DistanceY", -1, 1, 3, 2, 578.48))
sketch3.addConstraint(Sketcher.Constraint("DistanceX", -1, 1, 24, 2, 21.52))
sketch3.addConstraint(Sketcher.Constraint("DistanceX", 1, 1, 1, 2, 23.665329))
sketch3.addConstraint(Sketcher.Constraint("DistanceX", -1, 1, 8, 2, 1221.672599))
sketch3.addConstraint(Sketcher.Constraint("DistanceX", -1, 1, 11, 2, 1194.327401))
sketch3.addConstraint(Sketcher.Constraint("DistanceX", -1, 1, 19, 2, 590.327401))
sketch3.addConstraint(Sketcher.Constraint("DistanceX", 6, 2, 0, 2, 549.015501))
pad3 = body.newObject("PartDesign::Pad", "Pad002")
pad3.Profile = sketch3
pad3.setExpression("Length", "Params.pad3_length")
pad3.Reversed = True

# Sketch on XZ plane
sketch4 = body.newObject("Sketcher::SketchObject", "Sketch003")
sketch4.AttachmentSupport = (doc.getObject("XZ_Plane"), [""])
sketch4.MapMode = "FlatFace"
sketch4.AttachmentOffset = App.Placement(V(0, 0, -6.96), App.Rotation())
sketch4.addGeometry(Part.LineSegment(V(292, 22, 0), V(268, 22, 0)), False)
sketch4.addGeometry(Part.LineSegment(V(268, 22, 0), V(22, 561, 0)), False)
sketch4.addGeometry(Part.LineSegment(V(22, 561, 0), V(22, 578, 0)), False)
sketch4.addGeometry(Part.LineSegment(V(22, 578, 0), V(37, 578, 0)), False)
sketch4.addGeometry(Part.LineSegment(V(37, 578, 0), V(292, 22, 0)), False)
sketch4.addGeometry(Part.LineSegment(V(336, 22, 0), V(312, 22, 0)), False)
sketch4.addGeometry(Part.LineSegment(V(312, 22, 0), V(567, 578, 0)), False)
sketch4.addGeometry(Part.LineSegment(V(567, 578, 0), V(590, 578, 0)), False)
sketch4.addGeometry(Part.LineSegment(V(590, 578, 0), V(336, 22, 0)), False)
sketch4.addGeometry(Part.LineSegment(V(896, 22, 0), V(872, 22, 0)), False)
sketch4.addGeometry(Part.LineSegment(V(872, 22, 0), V(618, 578, 0)), False)
sketch4.addGeometry(Part.LineSegment(V(618, 578, 0), V(641, 578, 0)), False)
sketch4.addGeometry(Part.LineSegment(V(641, 578, 0), V(896, 22, 0)), False)
sketch4.addGeometry(Part.LineSegment(V(940, 22, 0), V(916, 22, 0)), False)
sketch4.addGeometry(Part.LineSegment(V(916, 22, 0), V(1171, 578, 0)), False)
sketch4.addGeometry(Part.LineSegment(V(1171, 578, 0), V(1194, 578, 0)), False)
sketch4.addGeometry(Part.LineSegment(V(1194, 578, 0), V(940, 22, 0)), False)
sketch4.addGeometry(Part.LineSegment(V(1500, 22, 0), V(1476, 22, 0)), False)
sketch4.addGeometry(Part.LineSegment(V(1476, 22, 0), V(1222, 578, 0)), False)
sketch4.addGeometry(Part.LineSegment(V(1222, 578, 0), V(1245, 578, 0)), False)
sketch4.addGeometry(Part.LineSegment(V(1245, 578, 0), V(1500, 22, 0)), False)
sketch4.addGeometry(Part.LineSegment(V(1544, 22, 0), V(1520, 22, 0)), False)
sketch4.addGeometry(Part.LineSegment(V(1520, 22, 0), V(1775, 578, 0)), False)
sketch4.addGeometry(Part.LineSegment(V(1775, 578, 0), V(1790, 578, 0)), False)
sketch4.addGeometry(Part.LineSegment(V(1790, 578, 0), V(1790, 561, 0)), False)
sketch4.addGeometry(Part.LineSegment(V(1790, 561, 0), V(1544, 22, 0)), False)
sketch4.addConstraint(Sketcher.Constraint("Coincident", 0, 2, 1, 1))
sketch4.addConstraint(Sketcher.Constraint("Coincident", 1, 2, 2, 1))
sketch4.addConstraint(Sketcher.Constraint("Coincident", 2, 2, 3, 1))
sketch4.addConstraint(Sketcher.Constraint("Coincident", 3, 2, 4, 1))
sketch4.addConstraint(Sketcher.Constraint("Coincident", 4, 2, 0, 1))
sketch4.addConstraint(Sketcher.Constraint("Coincident", 5, 2, 6, 1))
sketch4.addConstraint(Sketcher.Constraint("Coincident", 6, 2, 7, 1))
sketch4.addConstraint(Sketcher.Constraint("Coincident", 7, 2, 8, 1))
sketch4.addConstraint(Sketcher.Constraint("Coincident", 8, 2, 5, 1))
sketch4.addConstraint(Sketcher.Constraint("Coincident", 9, 2, 10, 1))
sketch4.addConstraint(Sketcher.Constraint("Coincident", 10, 2, 11, 1))
sketch4.addConstraint(Sketcher.Constraint("Coincident", 11, 2, 12, 1))
sketch4.addConstraint(Sketcher.Constraint("Coincident", 12, 2, 9, 1))
sketch4.addConstraint(Sketcher.Constraint("Coincident", 13, 2, 14, 1))
sketch4.addConstraint(Sketcher.Constraint("Coincident", 14, 2, 15, 1))
sketch4.addConstraint(Sketcher.Constraint("Coincident", 15, 2, 16, 1))
sketch4.addConstraint(Sketcher.Constraint("Coincident", 16, 2, 13, 1))
sketch4.addConstraint(Sketcher.Constraint("Coincident", 17, 2, 18, 1))
sketch4.addConstraint(Sketcher.Constraint("Coincident", 18, 2, 19, 1))
sketch4.addConstraint(Sketcher.Constraint("Coincident", 19, 2, 20, 1))
sketch4.addConstraint(Sketcher.Constraint("Coincident", 20, 2, 17, 1))
sketch4.addConstraint(Sketcher.Constraint("Coincident", 21, 2, 22, 1))
sketch4.addConstraint(Sketcher.Constraint("Coincident", 22, 2, 23, 1))
sketch4.addConstraint(Sketcher.Constraint("Coincident", 23, 2, 24, 1))
sketch4.addConstraint(Sketcher.Constraint("Coincident", 24, 2, 25, 1))
sketch4.addConstraint(Sketcher.Constraint("Coincident", 25, 2, 21, 1))
sketch4.addConstraint(Sketcher.Constraint("Horizontal", 0))
sketch4.addConstraint(Sketcher.Constraint("Vertical", 2))
sketch4.addConstraint(Sketcher.Constraint("Horizontal", 3))
sketch4.addConstraint(Sketcher.Constraint("Horizontal", 5))
sketch4.addConstraint(Sketcher.Constraint("Horizontal", 7))
sketch4.addConstraint(Sketcher.Constraint("Horizontal", 9))
sketch4.addConstraint(Sketcher.Constraint("Horizontal", 11))
sketch4.addConstraint(Sketcher.Constraint("Horizontal", 13))
sketch4.addConstraint(Sketcher.Constraint("Horizontal", 15))
sketch4.addConstraint(Sketcher.Constraint("Horizontal", 17))
sketch4.addConstraint(Sketcher.Constraint("Horizontal", 19))
sketch4.addConstraint(Sketcher.Constraint("Horizontal", 21))
sketch4.addConstraint(Sketcher.Constraint("Horizontal", 23))
sketch4.addConstraint(Sketcher.Constraint("Vertical", 24))
sketch4.addConstraint(Sketcher.Constraint("Parallel", 1, 4))
sketch4.addConstraint(Sketcher.Constraint("Parallel", 6, 8))
sketch4.addConstraint(Sketcher.Constraint("Parallel", 4, 10))
sketch4.addConstraint(Sketcher.Constraint("Parallel", 10, 12))
sketch4.addConstraint(Sketcher.Constraint("Parallel", 8, 14))
sketch4.addConstraint(Sketcher.Constraint("Parallel", 14, 16))
sketch4.addConstraint(Sketcher.Constraint("Parallel", 12, 18))
sketch4.addConstraint(Sketcher.Constraint("Parallel", 18, 20))
sketch4.addConstraint(Sketcher.Constraint("Parallel", 16, 22))
sketch4.addConstraint(Sketcher.Constraint("Parallel", 22, 25))
sketch4.addConstraint(Sketcher.Constraint("Horizontal", 4, 2, 5, 2))
sketch4.addConstraint(Sketcher.Constraint("Horizontal", 3, 2, 6, 2))
sketch4.addConstraint(Sketcher.Constraint("Horizontal", 8, 2, 9, 2))
sketch4.addConstraint(Sketcher.Constraint("Horizontal", 7, 2, 10, 2))
sketch4.addConstraint(Sketcher.Constraint("Horizontal", 12, 2, 13, 2))
sketch4.addConstraint(Sketcher.Constraint("Horizontal", 11, 2, 14, 2))
sketch4.addConstraint(Sketcher.Constraint("Horizontal", 16, 2, 17, 2))
sketch4.addConstraint(Sketcher.Constraint("Horizontal", 15, 2, 18, 2))
sketch4.addConstraint(Sketcher.Constraint("Horizontal", 20, 2, 21, 2))
sketch4.addConstraint(Sketcher.Constraint("Horizontal", 19, 2, 22, 2))
sketch4.addConstraint(Sketcher.Constraint("Horizontal", 1, 2, 24, 2))
sketch4.addConstraint(Sketcher.Constraint("Equal", 0, 5))
sketch4.addConstraint(Sketcher.Constraint("Equal", 7, 9))
sketch4.addConstraint(Sketcher.Constraint("Equal", 11, 13))
sketch4.addConstraint(Sketcher.Constraint("Equal", 15, 17))
sketch4.addConstraint(Sketcher.Constraint("Equal", 19, 21))
sketch4.addConstraint(Sketcher.Constraint("Equal", 3, 23))
sketch4.addConstraint(Sketcher.Constraint("DistanceX", 0, 2, 9, 2, 604.0))
sketch4.addConstraint(Sketcher.Constraint("DistanceX", 5, 2, 13, 2, 604.0))
sketch4.addConstraint(Sketcher.Constraint("DistanceX", 9, 2, 17, 2, 604.0))
sketch4.addConstraint(Sketcher.Constraint("DistanceX", 13, 2, 21, 2, 604.0))
sketch4.addConstraint(Sketcher.Constraint("DistanceY", -1, 1, 0, 2, 21.52))
sketch4.addConstraint(Sketcher.Constraint("DistanceX", -1, 1, 1, 2, 21.52))
sketch4.addConstraint(Sketcher.Constraint("DistanceY", -1, 1, 2, 2, 578.48))
sketch4.addConstraint(Sketcher.Constraint("DistanceX", -1, 1, 23, 2, 1790.48))
sketch4.addConstraint(Sketcher.Constraint("DistanceX", 0, 2, 0, 1, 23.665329))
sketch4.addConstraint(Sketcher.Constraint("DistanceX", -1, 1, 7, 2, 590.327401))
sketch4.addConstraint(Sketcher.Constraint("Distance", 1, 593.621118))
pad4 = body.newObject("PartDesign::Pad", "Pad003")
pad4.Profile = sketch4
pad4.setExpression("Length", "Params.pad4_length")

doc.recompute()
